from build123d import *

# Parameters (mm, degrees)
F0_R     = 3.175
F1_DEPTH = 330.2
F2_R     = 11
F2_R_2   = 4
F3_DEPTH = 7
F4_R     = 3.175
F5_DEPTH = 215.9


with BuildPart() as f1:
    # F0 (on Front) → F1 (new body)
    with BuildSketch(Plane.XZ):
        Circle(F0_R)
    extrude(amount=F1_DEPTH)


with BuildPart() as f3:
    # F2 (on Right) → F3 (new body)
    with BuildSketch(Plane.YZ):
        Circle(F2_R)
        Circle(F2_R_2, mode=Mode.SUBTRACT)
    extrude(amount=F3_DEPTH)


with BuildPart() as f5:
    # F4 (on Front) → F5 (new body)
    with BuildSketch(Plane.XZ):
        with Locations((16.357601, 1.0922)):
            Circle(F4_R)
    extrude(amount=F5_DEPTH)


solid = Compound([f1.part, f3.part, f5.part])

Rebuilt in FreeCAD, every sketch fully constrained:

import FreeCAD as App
import Part
import Sketcher

doc = App.newDocument("Part")
params = doc.addObject("Spreadsheet::Sheet", "Params")
for row, (alias, value) in enumerate([
    ("sketch1_diameter", "6.35 mm"),
    ("pad1_length", "330.2 mm"),
    ("sketch2_diameter", "22 mm"),
    ("sketch2_diameter2", "8 mm"),
    ("pad2_length", "7 mm"),
    ("sketch3_diameter", "6.35 mm"),
    ("pad3_length", "215.9 mm"),
], start=1):
    params.set(f"A{row}", alias)
    params.set(f"B{row}", "=" + value)
    params.setAlias(f"B{row}", alias)

body = doc.addObject("PartDesign::Body", "Body")

# Sketch on XZ plane
sketch1 = doc.addObject("Sketcher::SketchObject", "Sketch")
body.addObject(sketch1)
sketch1.AttachmentSupport = (doc.XZ_Plane, [""])
sketch1.MapMode = "FlatFace"
sketch1.addGeometry(Part.Circle(App.Vector(0, 0, 0), App.Vector(0, 0, 1), 3.175), False)
sketch1.addConstraint(Sketcher.Constraint("Coincident", 0, 3, -1, 1))
sketch1.addConstraint(Sketcher.Constraint("Diameter", 0, 6.35))
sketch1.setExpression("Constraints[1]", "Params.sketch1_diameter")
pad1 = doc.addObject("PartDesign::Pad", "Pad")
body.addObject(pad1)
pad1.Profile = sketch1
pad1.setExpression("Length", "Params.pad1_length")
body2 = doc.addObject("PartDesign::Body", "Body001")

# Sketch on YZ plane
sketch2 = doc.addObject("Sketcher::SketchObject", "Sketch001")
body2.addObject(sketch2)
sketch2.AttachmentSupport = (doc.getObject("YZ_Plane001"), [""])
sketch2.MapMode = "FlatFace"
sketch2.addGeometry(Part.Circle(App.Vector(0, 0, 0), App.Vector(0, 0, 1), 11), False)
sketch2.addGeometry(Part.Circle(App.Vector(0, 0, 0), App.Vector(0, 0, 1), 4), False)
sketch2.addConstraint(Sketcher.Constraint("Coincident", 0, 3, -1, 1))
sketch2.addConstraint(Sketcher.Constraint("Coincident", 1, 3, -1, 1))
sketch2.addConstraint(Sketcher.Constraint("Diameter", 0, 22.0))
sketch2.addConstraint(Sketcher.Constraint("Diameter", 1, 8.0))
sketch2.setExpression("Constraints[2]", "Params.sketch2_diameter")
sketch2.setExpression("Constraints[3]", "Params.sketch2_diameter2")
pad2 = doc.addObject("PartDesign::Pad", "Pad001")
body2.addObject(pad2)
pad2.Profile = sketch2
pad2.setExpression("Length", "Params.pad2_length")
body3 = doc.addObject("PartDesign::Body", "Body002")

# Sketch on XZ plane
sketch3 = doc.addObject("Sketcher::SketchObject", "Sketch002")
body3.addObject(sketch3)
sketch3.AttachmentSupport = (doc.getObject("XZ_Plane002"), [""])
sketch3.MapMode = "FlatFace"
sketch3.addGeometry(Part.Circle(App.Vector(16.357601, 1.0922, 0), App.Vector(0, 0, 1), 3.175), False)
sketch3.addConstraint(Sketcher.Constraint("Diameter", 0, 6.35))
sketch3.addConstraint(Sketcher.Constraint("DistanceX", -1, 1, 0, 3, 16.357601))
sketch3.addConstraint(Sketcher.Constraint("DistanceY", -1, 1, 0, 3, 1.0922))
sketch3.setExpression("Constraints[0]", "Params.sketch3_diameter")
pad3 = doc.addObject("PartDesign::Pad", "Pad002")
body3.addObject(pad3)
pad3.Profile = sketch3
pad3.setExpression("Length", "Params.pad3_length")

doc.recompute()
